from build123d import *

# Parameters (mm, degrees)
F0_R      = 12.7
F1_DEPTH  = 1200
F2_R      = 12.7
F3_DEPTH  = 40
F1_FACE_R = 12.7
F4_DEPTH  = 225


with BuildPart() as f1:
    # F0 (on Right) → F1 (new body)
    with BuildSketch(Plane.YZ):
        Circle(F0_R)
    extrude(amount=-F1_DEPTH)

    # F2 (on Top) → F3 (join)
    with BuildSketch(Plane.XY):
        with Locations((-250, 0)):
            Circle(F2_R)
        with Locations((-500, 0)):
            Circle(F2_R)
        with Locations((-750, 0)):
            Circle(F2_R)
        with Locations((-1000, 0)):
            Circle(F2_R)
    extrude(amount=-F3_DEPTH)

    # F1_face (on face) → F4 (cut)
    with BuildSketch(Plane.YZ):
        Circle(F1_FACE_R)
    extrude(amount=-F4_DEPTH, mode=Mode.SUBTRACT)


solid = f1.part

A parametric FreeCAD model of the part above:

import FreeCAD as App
import Part
import Sketcher

doc = App.newDocument("Part")
body = doc.addObject("PartDesign::Body", "Body")

# Sketch on YZ plane
sketch1 = doc.addObject("Sketcher::SketchObject", "Sketch")
body.addObject(sketch1)
sketch1.AttachmentSupport = (doc.YZ_Plane, [""])
sketch1.MapMode = "FlatFace"
sketch1.addGeometry(Part.Circle(App.Vector(0, 0, 0), App.Vector(0, 0, 1), 13), False)
sketch1.addConstraint(Sketcher.Constraint("Coincident", 0, 3, -1, 1))
sketch1.addConstraint(Sketcher.Constraint("Diameter", 0, 25.4))
pad1 = doc.addObject("PartDesign::Pad", "Pad")
body.addObject(pad1)
pad1.Profile = sketch1
pad1.Length = 1200
pad1.Reversed = True

# Sketch on XY plane
sketch2 = doc.addObject("Sketcher::SketchObject", "Sketch001")
body.addObject(sketch2)
sketch2.AttachmentSupport = (doc.XY_Plane, [""])
sketch2.MapMode = "FlatFace"
sketch2.addGeometry(Part.Circle(App.Vector(-250, 0, 0), App.Vector(0, 0, 1), 13), False)
sketch2.addGeometry(Part.Circle(App.Vector(-500, 0, 0), App.Vector(0, 0, 1), 13), False)
sketch2.addGeometry(Part.Circle(App.Vector(-750, 0, 0), App.Vector(0, 0, 1), 13), False)
sketch2.addGeometry(Part.Circle(App.Vector(-1000, 0, 0), App.Vector(0, 0, 1), 13), False)
sketch2.addConstraint(Sketcher.Constraint("Equal", 0, 1))
sketch2.addConstraint(Sketcher.Constraint("Equal", 1, 2))
sketch2.addConstraint(Sketcher.Constraint("Equal", 2, 3))
sketch2.addConstraint(Sketcher.Constraint("PointOnObject", 0, 3, -1))
sketch2.addConstraint(Sketcher.Constraint("PointOnObject", 1, 3, -1))
sketch2.addConstraint(Sketcher.Constraint("PointOnObject", 2, 3, -1))
sketch2.addConstraint(Sketcher.Constraint("PointOnObject", 3, 3, -1))
sketch2.addConstraint(Sketcher.Constraint("Diameter", 0, 25.4))
sketch2.addConstraint(Sketcher.Constraint("DistanceX", 0, 3, -1, 1, 250.0))
sketch2.addConstraint(Sketcher.Constraint("DistanceX", 1, 3, -1, 1, 500.0))
sketch2.addConstraint(Sketcher.Constraint("DistanceX", 2, 3, -1, 1, 750.0))
sketch2.addConstraint(Sketcher.Constraint("DistanceX", 3, 3, -1, 1, 1000.0))
pad2 = doc.addObject("PartDesign::Pad", "Pad001")
body.addObject(pad2)
pad2.Profile = sketch2
pad2.Length = 40
pad2.Reversed = True

# Sketch on YZ plane
sketch3 = doc.addObject("Sketcher::SketchObject", "Sketch002")
body.addObject(sketch3)
sketch3.AttachmentSupport = (doc.YZ_Plane, [""])
sketch3.MapMode = "FlatFace"
sketch3.addGeometry(Part.Circle(App.Vector(0, 0, 0), App.Vector(0, 0, 1), 13), False)
sketch3.addConstraint(Sketcher.Constraint("Coincident", 0, 3, -1, 1))
sketch3.addConstraint(Sketcher.Constraint("Diameter", 0, 25.4))
pocket1 = doc.addObject("PartDesign::Pocket", "Pocket")
body.addObject(pocket1)
pocket1.Profile = sketch3
pocket1.Length = 225

doc.recompute()
